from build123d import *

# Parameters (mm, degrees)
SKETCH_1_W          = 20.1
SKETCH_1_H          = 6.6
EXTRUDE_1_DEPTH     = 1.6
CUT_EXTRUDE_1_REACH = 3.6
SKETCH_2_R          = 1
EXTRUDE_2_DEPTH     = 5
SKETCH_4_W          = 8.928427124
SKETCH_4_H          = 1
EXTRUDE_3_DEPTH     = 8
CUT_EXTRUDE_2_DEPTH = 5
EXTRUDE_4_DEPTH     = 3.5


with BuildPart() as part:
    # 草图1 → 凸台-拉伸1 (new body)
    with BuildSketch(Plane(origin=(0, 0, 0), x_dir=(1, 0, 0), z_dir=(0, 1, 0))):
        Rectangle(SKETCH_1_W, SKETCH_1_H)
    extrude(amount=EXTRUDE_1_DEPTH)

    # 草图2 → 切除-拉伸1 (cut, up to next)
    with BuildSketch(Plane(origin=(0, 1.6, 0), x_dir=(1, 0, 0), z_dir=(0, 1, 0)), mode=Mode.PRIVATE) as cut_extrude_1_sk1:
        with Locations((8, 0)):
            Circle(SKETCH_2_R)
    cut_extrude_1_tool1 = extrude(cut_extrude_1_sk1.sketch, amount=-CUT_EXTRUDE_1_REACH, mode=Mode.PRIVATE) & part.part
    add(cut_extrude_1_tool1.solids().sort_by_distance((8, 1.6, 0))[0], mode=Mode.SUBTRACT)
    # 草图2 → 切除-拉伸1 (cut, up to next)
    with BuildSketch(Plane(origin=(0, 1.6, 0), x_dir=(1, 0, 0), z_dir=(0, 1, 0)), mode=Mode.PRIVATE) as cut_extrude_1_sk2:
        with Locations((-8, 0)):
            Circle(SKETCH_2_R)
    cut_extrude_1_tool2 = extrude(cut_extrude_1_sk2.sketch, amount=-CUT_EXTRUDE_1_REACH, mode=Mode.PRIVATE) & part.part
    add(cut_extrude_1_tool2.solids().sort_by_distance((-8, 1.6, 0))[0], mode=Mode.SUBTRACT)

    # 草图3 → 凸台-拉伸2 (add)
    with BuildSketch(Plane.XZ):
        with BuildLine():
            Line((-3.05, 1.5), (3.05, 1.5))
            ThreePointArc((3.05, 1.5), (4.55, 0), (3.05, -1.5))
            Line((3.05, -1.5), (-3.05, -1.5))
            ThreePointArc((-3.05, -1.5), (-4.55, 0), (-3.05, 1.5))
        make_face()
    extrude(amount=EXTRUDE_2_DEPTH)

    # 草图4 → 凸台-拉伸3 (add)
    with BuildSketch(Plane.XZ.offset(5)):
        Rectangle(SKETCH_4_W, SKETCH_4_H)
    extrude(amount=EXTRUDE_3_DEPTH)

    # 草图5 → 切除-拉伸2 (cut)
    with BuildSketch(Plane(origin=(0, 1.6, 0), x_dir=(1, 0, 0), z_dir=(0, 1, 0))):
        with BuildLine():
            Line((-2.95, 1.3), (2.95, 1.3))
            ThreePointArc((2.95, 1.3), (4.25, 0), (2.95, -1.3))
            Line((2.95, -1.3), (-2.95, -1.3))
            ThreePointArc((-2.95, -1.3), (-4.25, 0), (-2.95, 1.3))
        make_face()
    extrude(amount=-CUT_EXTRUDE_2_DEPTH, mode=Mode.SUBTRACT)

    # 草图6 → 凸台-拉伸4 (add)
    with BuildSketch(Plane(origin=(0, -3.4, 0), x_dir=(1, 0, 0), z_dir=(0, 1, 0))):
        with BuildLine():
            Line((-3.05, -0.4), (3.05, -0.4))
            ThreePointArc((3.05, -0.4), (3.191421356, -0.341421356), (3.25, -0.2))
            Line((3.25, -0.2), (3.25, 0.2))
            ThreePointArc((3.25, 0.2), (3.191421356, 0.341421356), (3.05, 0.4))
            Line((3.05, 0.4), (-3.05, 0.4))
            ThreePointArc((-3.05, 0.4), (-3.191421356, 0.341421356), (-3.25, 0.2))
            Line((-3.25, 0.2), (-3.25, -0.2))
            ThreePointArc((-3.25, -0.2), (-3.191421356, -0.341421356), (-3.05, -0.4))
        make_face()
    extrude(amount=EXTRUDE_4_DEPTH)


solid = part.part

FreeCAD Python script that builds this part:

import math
import FreeCAD as App
import Part
import Sketcher

V = App.Vector

doc = App.newDocument("Part")
body = doc.addObject("PartDesign::Body", "Body")

sketch1 = body.newObject("Sketcher::SketchObject", "Sketch")
sketch1.AttachmentSupport = (doc.getObject("XZ_Plane"), [""])
sketch1.MapMode = "FlatFace"
sketch1.addGeometry([
    Part.LineSegment(V(-10, -3, 0), V(-10, 3, 0)),
    Part.LineSegment(V(-10, 3, 0), V(10, 3, 0)),
    Part.LineSegment(V(10, 3, 0), V(10, -3, 0)),
    Part.LineSegment(V(10, -3, 0), V(-10, -3, 0)),
], False)
sketch1.addConstraint([
    Sketcher.Constraint("Coincident", 0, 2, 1, 1),
    Sketcher.Constraint("Coincident", 1, 2, 2, 1),
    Sketcher.Constraint("Coincident", 2, 2, 3, 1),
    Sketcher.Constraint("Coincident", 3, 2, 0, 1),
    Sketcher.Constraint("Vertical", 0),
    Sketcher.Constraint("Horizontal", 1),
    Sketcher.Constraint("Vertical", 2),
    Sketcher.Constraint("Horizontal", 3),
    Sketcher.Constraint("Symmetric", 0, 2, 2, 2, -1, 1),
    Sketcher.Constraint("DistanceX", 1, 1, 1, 2, 20.1),
    Sketcher.Constraint("DistanceY", 0, 1, 0, 2, 6.6),
])
pad1 = body.newObject("PartDesign::Pad", "Pad")
pad1.Profile = sketch1
pad1.Length = 1.6
pad1.Reversed = True

sketch2 = body.newObject("Sketcher::SketchObject", "Sketch001")
sketch2.AttachmentSupport = (doc.getObject("XZ_Plane"), [""])
sketch2.MapMode = "FlatFace"
sketch2.AttachmentOffset = App.Placement(V(0, 0, -1.6), App.Rotation())
sketch2.addGeometry(Part.Circle(V(8, 0, 0), V(0, 0, 1), 1), False)
sketch2.addConstraint([
    Sketcher.Constraint("PointOnObject", 0, 3, -1),
    Sketcher.Constraint("Diameter", 0, 2.0),
    Sketcher.Constraint("DistanceX", -1, 1, 0, 3, 8.0),
])
pocket1 = body.newObject("PartDesign::Pocket", "Pocket")
pocket1.Profile = sketch2
pocket1.Type = "UpToFirst"
pocket1.Reversed = True

sketch3 = body.newObject("Sketcher::SketchObject", "Sketch002")
sketch3.AttachmentSupport = (doc.getObject("XZ_Plane"), [""])
sketch3.MapMode = "FlatFace"
sketch3.AttachmentOffset = App.Placement(V(0, 0, -1.6), App.Rotation())
sketch3.addGeometry(Part.Circle(V(-8, 0, 0), V(0, 0, 1), 1), False)
sketch3.addConstraint([
    Sketcher.Constraint("PointOnObject", 0, 3, -1),
    Sketcher.Constraint("Diameter", 0, 2.0),
    Sketcher.Constraint("DistanceX", 0, 3, -1, 1, 8.0),
])
pocket2 = body.newObject("PartDesign::Pocket", "Pocket001")
pocket2.Profile = sketch3
pocket2.Type = "UpToFirst"
pocket2.Reversed = True

sketch4 = body.newObject("Sketcher::SketchObject", "Sketch003")
sketch4.AttachmentSupport = (doc.getObject("XZ_Plane"), [""])
sketch4.MapMode = "FlatFace"
sketch4.addGeometry([
    Part.LineSegment(V(3, 1.5, 0), V(-3, 1.5, 0)),
    Part.ArcOfCircle(Part.Circle(V(-3, 0, 0), V(0, 0, 1), 1.5), math.radians(90), math.radians(270)),
    Part.LineSegment(V(-3, -1.5, 0), V(3, -1.5, 0)),
    Part.ArcOfCircle(Part.Circle(V(3, 0, 0), V(0, 0, 1), 1.5), math.radians(-90), math.radians(90)),
], False)
sketch4.addConstraint([
    Sketcher.Constraint("Tangent", 0, 2, 1, 1),
    Sketcher.Constraint("Tangent", 1, 2, 2, 1),
    Sketcher.Constraint("Tangent", 2, 2, 3, 1),
    Sketcher.Constraint("Tangent", 3, 2, 0, 1),
    Sketcher.Constraint("Horizontal", 0),
    Sketcher.Constraint("Horizontal", 2),
    Sketcher.Constraint("Symmetric", 1, 3, 3, 3, -1, 1),
    Sketcher.Constraint("Radius", 1, 1.5),
    Sketcher.Constraint("DistanceX", 0, 2, 0, 1, 6.1),
])
pad2 = body.newObject("PartDesign::Pad", "Pad001")
pad2.Profile = sketch4
pad2.Length = 5

sketch5 = body.newObject("Sketcher::SketchObject", "Sketch004")
sketch5.AttachmentSupport = (doc.getObject("XZ_Plane"), [""])
sketch5.MapMode = "FlatFace"
sketch5.AttachmentOffset = App.Placement(V(0, 0, 5), App.Rotation())
sketch5.addGeometry([
    Part.LineSegment(V(-4.5, 0.5, 0), V(-4.5, -0.5, 0)),
    Part.LineSegment(V(-4.5, -0.5, 0), V(4.5, -0.5, 0)),
    Part.LineSegment(V(4.5, -0.5, 0), V(4.5, 0.5, 0)),
    Part.LineSegment(V(4.5, 0.5, 0), V(-4.5, 0.5, 0)),
], False)
sketch5.addConstraint([
    Sketcher.Constraint("Coincident", 0, 2, 1, 1),
    Sketcher.Constraint("Coincident", 1, 2, 2, 1),
    Sketcher.Constraint("Coincident", 2, 2, 3, 1),
    Sketcher.Constraint("Coincident", 3, 2, 0, 1),
    Sketcher.Constraint("Vertical", 0),
    Sketcher.Constraint("Horizontal", 1),
    Sketcher.Constraint("Vertical", 2),
    Sketcher.Constraint("Horizontal", 3),
    Sketcher.Constraint("Symmetric", 0, 2, 2, 2, -1, 1),
    Sketcher.Constraint("DistanceY", 0, 2, 0, 1, 1.0),
    Sketcher.Constraint("DistanceX", 1, 1, 1, 2, 8.928427),
])
pad3 = body.newObject("PartDesign::Pad", "Pad002")
pad3.Profile = sketch5
pad3.Length = 8

sketch6 = body.newObject("Sketcher::SketchObject", "Sketch005")
sketch6.AttachmentSupport = (doc.getObject("XZ_Plane"), [""])
sketch6.MapMode = "FlatFace"
sketch6.AttachmentOffset = App.Placement(V(0, 0, -1.6), App.Rotation())
sketch6.addGeometry([
    Part.LineSegment(V(3, -1.3, 0), V(-3, -1.3, 0)),
    Part.ArcOfCircle(Part.Circle(V(-3, 0, 0), V(0, 0, 1), 1.3), math.radians(90), math.radians(270)),
    Part.LineSegment(V(-3, 1.3, 0), V(3, 1.3, 0)),
    Part.ArcOfCircle(Part.Circle(V(3, 0, 0), V(0, 0, 1), 1.3), math.radians(-90), math.radians(90)),
], False)
sketch6.addConstraint([
    Sketcher.Constraint("Tangent", 0, 2, 1, 2),
    Sketcher.Constraint("Tangent", 1, 1, 2, 1),
    Sketcher.Constraint("Tangent", 2, 2, 3, 2),
    Sketcher.Constraint("Tangent", 3, 1, 0, 1),
    Sketcher.Constraint("Horizontal", 0),
    Sketcher.Constraint("Horizontal", 2),
    Sketcher.Constraint("Symmetric", 1, 3, 3, 3, -1, 1),
    Sketcher.Constraint("Radius", 1, 1.3),
    Sketcher.Constraint("DistanceX", 0, 2, 0, 1, 5.9),
])
pocket3 = body.newObject("PartDesign::Pocket", "Pocket002")
pocket3.Profile = sketch6
pocket3.Length = 5
pocket3.Reversed = True

sketch7 = body.newObject("Sketcher::SketchObject", "Sketch006")
sketch7.AttachmentSupport = (doc.getObject("XZ_Plane"), [""])
sketch7.MapMode = "FlatFace"
sketch7.AttachmentOffset = App.Placement(V(0, 0, 3.4), App.Rotation())
sketch7.addGeometry([
    Part.LineSegment(V(-3.05, 0.4, 0), V(3.05, 0.4, 0)),
    Part.ArcOfCircle(Part.Circle(V(3.05, 0.2, 0), V(0, 0, 1), 0.2), math.radians(0), math.radians(90)),
    Part.LineSegment(V(3.25, 0.2, 0), V(3.25, -0.2, 0)),
    Part.ArcOfCircle(Part.Circle(V(3.05, -0.2, 0), V(0, 0, 1), 0.2), math.radians(-90), math.radians(0)),
    Part.LineSegment(V(3.05, -0.4, 0), V(-3.05, -0.4, 0)),
    Part.ArcOfCircle(Part.Circle(V(-3.05, -0.2, 0), V(0, 0, 1), 0.2), math.radians(-180), math.radians(-90)),
    Part.LineSegment(V(-3.25, -0.2, 0), V(-3.25, 0.2, 0)),
    Part.ArcOfCircle(Part.Circle(V(-3.05, 0.2, 0), V(0, 0, 1), 0.2), math.radians(90), math.radians(180)),
], False)
sketch7.addConstraint([
    Sketcher.Constraint("Tangent", 0, 2, 1, 2),
    Sketcher.Constraint("Tangent", 1, 1, 2, 1),
    Sketcher.Constraint("Tangent", 2, 2, 3, 2),
    Sketcher.Constraint("Tangent", 3, 1, 4, 1),
    Sketcher.Constraint("Tangent", 4, 2, 5, 2),
    Sketcher.Constraint("Tangent", 5, 1, 6, 1),
    Sketcher.Constraint("Tangent", 6, 2, 7, 2),
    Sketcher.Constraint("Tangent", 7, 1, 0, 1),
    Sketcher.Constraint("Horizontal", 0),
    Sketcher.Constraint("Vertical", 2),
    Sketcher.Constraint("Horizontal", 4),
    Sketcher.Constraint("Vertical", 6),
    Sketcher.Constraint("Equal", 1, 3),
    Sketcher.Constraint("Equal", 3, 5),
    Sketcher.Constraint("Equal", 5, 7),
    Sketcher.Constraint("Symmetric", 1, 3, 5, 3, -1, 1),
    Sketcher.Constraint("Radius", 1, 0.2),
    Sketcher.Constraint("DistanceX", 0, 1, 0, 2, 6.1),
    Sketcher.Constraint("DistanceY", 2, 2, 2, 1, 0.4),
])
pad4 = body.newObject("PartDesign::Pad", "Pad003")
pad4.Profile = sketch7
pad4.Length = 3.5
pad4.Reversed = True

doc.recompute()
